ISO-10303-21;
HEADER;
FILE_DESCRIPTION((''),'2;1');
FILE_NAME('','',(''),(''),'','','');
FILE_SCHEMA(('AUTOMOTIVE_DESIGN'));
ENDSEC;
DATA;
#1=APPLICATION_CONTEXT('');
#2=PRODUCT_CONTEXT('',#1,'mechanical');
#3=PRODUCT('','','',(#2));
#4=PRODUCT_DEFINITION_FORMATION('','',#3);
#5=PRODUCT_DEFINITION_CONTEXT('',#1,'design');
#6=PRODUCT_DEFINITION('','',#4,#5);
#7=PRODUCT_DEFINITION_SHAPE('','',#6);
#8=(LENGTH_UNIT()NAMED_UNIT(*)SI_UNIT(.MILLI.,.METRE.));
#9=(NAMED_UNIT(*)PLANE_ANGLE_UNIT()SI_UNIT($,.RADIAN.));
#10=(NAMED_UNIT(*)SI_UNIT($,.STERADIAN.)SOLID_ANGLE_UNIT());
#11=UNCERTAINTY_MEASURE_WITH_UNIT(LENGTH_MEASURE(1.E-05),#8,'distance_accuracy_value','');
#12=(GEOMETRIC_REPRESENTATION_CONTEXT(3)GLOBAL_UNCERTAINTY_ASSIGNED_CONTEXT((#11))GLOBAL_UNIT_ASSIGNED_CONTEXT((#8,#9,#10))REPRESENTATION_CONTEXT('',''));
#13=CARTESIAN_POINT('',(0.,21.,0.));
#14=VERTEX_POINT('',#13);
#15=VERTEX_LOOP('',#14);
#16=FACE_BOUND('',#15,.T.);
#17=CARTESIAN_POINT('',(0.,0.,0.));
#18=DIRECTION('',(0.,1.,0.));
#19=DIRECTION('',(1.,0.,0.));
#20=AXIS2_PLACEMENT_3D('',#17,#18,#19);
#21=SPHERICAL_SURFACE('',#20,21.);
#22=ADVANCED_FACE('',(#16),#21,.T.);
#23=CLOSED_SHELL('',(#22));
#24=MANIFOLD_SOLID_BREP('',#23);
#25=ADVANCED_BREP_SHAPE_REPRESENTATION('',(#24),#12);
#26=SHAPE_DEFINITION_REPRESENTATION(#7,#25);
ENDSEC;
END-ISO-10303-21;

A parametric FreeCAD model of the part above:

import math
import FreeCAD as App
import Part
import Sketcher
Q = App.Units.Quantity

doc = App.newDocument("Part")
params = doc.addObject("Spreadsheet::Sheet", "Params")
for row, (alias, value) in enumerate([
    ("sketch1_radius", "21 mm"),
    ("revolution_angle", "360 deg"),
], start=1):
    params.set(f"A{row}", alias)
    params.set(f"B{row}", "=" + value)
    params.setAlias(f"B{row}", alias)

body = doc.addObject("PartDesign::Body", "Body")

# Sketch on XY plane
sketch1 = body.newObject("Sketcher::SketchObject", "Sketch")
sketch1.AttachmentSupport = (doc.getObject("XY_Plane"), [""])
sketch1.MapMode = "FlatFace"
sketch1.addGeometry(Part.LineSegment(App.Vector(0, 21, 0), App.Vector(0, -21, 0)), False)
sketch1.addGeometry(Part.ArcOfCircle(Part.Circle(App.Vector(0, 0, 0), App.Vector(0, 0, 1), 21), math.radians(-90), math.radians(90)), False)
sketch1.addConstraint(Sketcher.Constraint("Coincident", 0, 1, 1, 2))
sketch1.addConstraint(Sketcher.Constraint("Coincident", 1, 1, 0, 2))
sketch1.addConstraint(Sketcher.Constraint("Vertical", 0))
sketch1.addConstraint(Sketcher.Constraint("Coincident", 1, 3, -1, 1))
sketch1.addConstraint(Sketcher.Constraint("PointOnObject", 0, 1, -2))
sketch1.addConstraint(Sketcher.Constraint("Radius", 1, Q("21 mm")))
sketch1.setExpression("Constraints[5]", "Params.sketch1_radius")
revolution = body.newObject("PartDesign::Revolution", "Revolution")
revolution.Profile = sketch1
revolution.ReferenceAxis = (sketch1, ["V_Axis"])
revolution.setExpression("Angle", "Params.revolution_angle")

doc.recompute()
